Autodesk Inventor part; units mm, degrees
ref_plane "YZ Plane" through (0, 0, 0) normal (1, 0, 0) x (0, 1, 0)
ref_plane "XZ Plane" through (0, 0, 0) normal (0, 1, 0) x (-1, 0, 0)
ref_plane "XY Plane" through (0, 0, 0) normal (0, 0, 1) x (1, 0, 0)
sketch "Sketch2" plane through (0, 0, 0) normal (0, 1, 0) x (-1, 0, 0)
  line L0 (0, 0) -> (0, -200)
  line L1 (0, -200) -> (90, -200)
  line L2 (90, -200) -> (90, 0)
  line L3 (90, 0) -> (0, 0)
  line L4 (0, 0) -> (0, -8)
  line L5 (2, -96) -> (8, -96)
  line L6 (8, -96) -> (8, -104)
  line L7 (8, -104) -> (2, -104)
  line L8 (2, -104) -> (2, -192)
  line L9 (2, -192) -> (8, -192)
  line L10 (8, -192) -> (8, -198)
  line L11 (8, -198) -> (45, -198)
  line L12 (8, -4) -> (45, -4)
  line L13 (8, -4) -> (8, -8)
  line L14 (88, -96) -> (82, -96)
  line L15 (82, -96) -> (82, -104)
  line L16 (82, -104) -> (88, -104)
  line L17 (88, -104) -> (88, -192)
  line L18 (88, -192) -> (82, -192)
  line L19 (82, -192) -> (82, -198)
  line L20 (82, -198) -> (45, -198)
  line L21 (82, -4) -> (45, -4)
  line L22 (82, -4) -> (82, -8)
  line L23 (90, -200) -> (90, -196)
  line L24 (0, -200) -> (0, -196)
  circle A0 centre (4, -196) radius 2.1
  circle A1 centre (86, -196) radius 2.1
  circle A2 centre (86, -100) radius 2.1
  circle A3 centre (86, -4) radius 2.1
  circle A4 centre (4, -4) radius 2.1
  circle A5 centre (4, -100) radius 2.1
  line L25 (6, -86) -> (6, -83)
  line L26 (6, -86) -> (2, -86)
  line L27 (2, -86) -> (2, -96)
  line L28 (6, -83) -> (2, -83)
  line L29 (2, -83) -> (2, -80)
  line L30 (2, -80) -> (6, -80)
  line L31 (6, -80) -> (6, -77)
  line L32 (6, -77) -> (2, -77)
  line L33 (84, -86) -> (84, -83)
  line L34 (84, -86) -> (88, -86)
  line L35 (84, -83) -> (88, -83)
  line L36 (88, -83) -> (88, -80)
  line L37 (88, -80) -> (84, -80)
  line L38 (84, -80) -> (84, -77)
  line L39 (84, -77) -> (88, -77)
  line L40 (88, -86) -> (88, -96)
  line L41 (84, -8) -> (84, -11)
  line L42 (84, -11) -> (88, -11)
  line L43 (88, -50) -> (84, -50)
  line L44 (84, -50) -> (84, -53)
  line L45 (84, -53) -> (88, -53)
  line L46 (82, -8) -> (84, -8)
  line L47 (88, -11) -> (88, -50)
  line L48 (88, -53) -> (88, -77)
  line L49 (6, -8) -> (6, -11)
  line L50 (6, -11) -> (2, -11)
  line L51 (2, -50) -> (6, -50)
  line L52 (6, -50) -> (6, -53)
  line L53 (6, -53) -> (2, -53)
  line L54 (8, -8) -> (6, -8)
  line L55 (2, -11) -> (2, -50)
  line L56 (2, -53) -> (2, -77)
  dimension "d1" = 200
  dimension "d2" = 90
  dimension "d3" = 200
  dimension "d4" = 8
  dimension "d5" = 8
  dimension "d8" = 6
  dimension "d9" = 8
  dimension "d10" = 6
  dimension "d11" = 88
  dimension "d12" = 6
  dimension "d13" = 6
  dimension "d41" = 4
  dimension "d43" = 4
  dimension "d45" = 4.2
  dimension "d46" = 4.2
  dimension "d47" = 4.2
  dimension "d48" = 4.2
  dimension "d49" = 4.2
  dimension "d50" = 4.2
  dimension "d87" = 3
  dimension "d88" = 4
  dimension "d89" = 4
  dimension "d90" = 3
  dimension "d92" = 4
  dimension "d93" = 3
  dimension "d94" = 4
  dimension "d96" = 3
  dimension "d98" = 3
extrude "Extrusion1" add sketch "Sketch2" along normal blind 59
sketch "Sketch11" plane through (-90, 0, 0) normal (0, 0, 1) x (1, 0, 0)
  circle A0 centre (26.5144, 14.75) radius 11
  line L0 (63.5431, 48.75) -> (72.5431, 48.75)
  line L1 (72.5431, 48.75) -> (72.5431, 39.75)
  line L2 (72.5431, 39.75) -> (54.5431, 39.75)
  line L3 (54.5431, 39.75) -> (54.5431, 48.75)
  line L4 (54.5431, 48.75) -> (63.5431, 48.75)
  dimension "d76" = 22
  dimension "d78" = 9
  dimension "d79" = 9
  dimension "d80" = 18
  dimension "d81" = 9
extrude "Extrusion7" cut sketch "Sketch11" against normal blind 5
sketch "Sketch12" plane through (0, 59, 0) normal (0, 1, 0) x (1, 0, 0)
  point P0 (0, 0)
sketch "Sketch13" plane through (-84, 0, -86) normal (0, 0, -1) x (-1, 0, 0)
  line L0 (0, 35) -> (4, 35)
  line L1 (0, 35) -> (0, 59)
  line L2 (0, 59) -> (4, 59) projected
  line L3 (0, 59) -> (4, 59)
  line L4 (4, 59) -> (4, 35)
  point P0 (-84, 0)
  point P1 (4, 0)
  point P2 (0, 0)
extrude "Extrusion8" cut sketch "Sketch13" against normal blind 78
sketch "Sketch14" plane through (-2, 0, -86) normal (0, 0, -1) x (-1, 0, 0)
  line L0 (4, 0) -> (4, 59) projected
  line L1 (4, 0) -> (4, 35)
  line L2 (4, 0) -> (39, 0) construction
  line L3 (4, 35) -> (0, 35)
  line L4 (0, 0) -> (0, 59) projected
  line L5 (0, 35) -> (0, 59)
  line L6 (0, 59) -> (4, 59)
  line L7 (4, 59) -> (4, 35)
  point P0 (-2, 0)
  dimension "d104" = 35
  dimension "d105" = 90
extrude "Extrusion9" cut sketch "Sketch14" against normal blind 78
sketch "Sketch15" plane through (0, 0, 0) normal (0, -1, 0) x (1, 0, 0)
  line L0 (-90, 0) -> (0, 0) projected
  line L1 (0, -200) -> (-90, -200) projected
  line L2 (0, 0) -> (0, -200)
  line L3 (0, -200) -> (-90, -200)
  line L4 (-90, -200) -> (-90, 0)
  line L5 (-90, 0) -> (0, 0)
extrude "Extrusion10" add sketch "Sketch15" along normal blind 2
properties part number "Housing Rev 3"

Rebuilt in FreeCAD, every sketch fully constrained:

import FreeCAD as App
import Part
import Sketcher
Q = App.Units.Quantity


def add_polygon(sketch, points):
    """Adds a closed chain of lines whose ends are joined by coincident constraints."""
    first, n = sketch.GeometryCount, len(points)
    for a, b in zip(points, points[1:] + points[:1]):
        sketch.addGeometry(Part.LineSegment(App.Vector(*a, 0), App.Vector(*b, 0)), False)
    for i in range(n):
        sketch.addConstraint(Sketcher.Constraint("Coincident", first + i, 2, first + (i + 1) % n, 1))

doc = App.newDocument("Part")
body = doc.addObject("PartDesign::Body", "Body")

# Sketch on XZ plane
sketch1 = doc.addObject("Sketcher::SketchObject", "Sketch")
body.addObject(sketch1)
sketch1.AttachmentSupport = (doc.XZ_Plane, [""])
sketch1.MapMode = "FlatFace"
add_polygon(sketch1, [(-90, 0), (0, 0), (0, -200), (-90, -200)])  # lines 0-3
sketch1.addGeometry(Part.Circle(App.Vector(-4, -196, 0), App.Vector(0, 0, 1), 2.1), False)  # 4
sketch1.addGeometry(Part.Circle(App.Vector(-86, -196, 0), App.Vector(0, 0, 1), 2.1), False)  # 5
add_polygon(sketch1, [(-8, -96), (-2, -96), (-2, -86), (-6, -86), (-6, -83), (-2, -83), (-2, -80), (-6, -80), (-6, -77), (-2, -77), (-2, -53), (-6, -53), (-6, -50), (-2, -50), (-2, -11), (-6, -11), (-6, -8), (-8, -8), (-8, -4), (-82, -4), (-82, -8), (-84, -8), (-84, -11), (-88, -11), (-88, -50), (-84, -50), (-84, -53), (-88, -53), (-88, -77), (-84, -77), (-84, -80), (-88, -80), (-88, -83), (-84, -83), (-84, -86), (-88, -86), (-88, -96), (-82, -96), (-82, -104), (-88, -104), (-88, -192), (-82, -192), (-82, -198), (-8, -198), (-8, -192), (-2, -192), (-2, -104), (-8, -104)])  # lines 6-53
sketch1.addGeometry(Part.Circle(App.Vector(-4, -100, 0), App.Vector(0, 0, 1), 2.1), False)  # 54
sketch1.addGeometry(Part.Circle(App.Vector(-4, -4, 0), App.Vector(0, 0, 1), 2.1), False)  # 55
sketch1.addGeometry(Part.Circle(App.Vector(-86, -100, 0), App.Vector(0, 0, 1), 2.1), False)  # 56
sketch1.addGeometry(Part.Circle(App.Vector(-86, -4, 0), App.Vector(0, 0, 1), 2.1), False)  # 57
sketch1.addConstraint([
    Sketcher.Constraint("Horizontal", 0),
    Sketcher.Constraint("Vertical", 1),
    Sketcher.Constraint("Horizontal", 2),
    Sketcher.Constraint("Vertical", 3),
    Sketcher.Constraint("Horizontal", 6),
    Sketcher.Constraint("Vertical", 7),
    Sketcher.Constraint("Horizontal", 8),
    Sketcher.Constraint("Vertical", 9),
    Sketcher.Constraint("Horizontal", 10),
    Sketcher.Constraint("Vertical", 11),
    Sketcher.Constraint("Horizontal", 12),
    Sketcher.Constraint("Vertical", 13),
    Sketcher.Constraint("Horizontal", 14),
    Sketcher.Constraint("Vertical", 15),
    Sketcher.Constraint("Horizontal", 16),
    Sketcher.Constraint("Vertical", 17),
    Sketcher.Constraint("Horizontal", 18),
    Sketcher.Constraint("Vertical", 19),
    Sketcher.Constraint("Horizontal", 20),
    Sketcher.Constraint("Vertical", 21),
    Sketcher.Constraint("Horizontal", 22),
    Sketcher.Constraint("Vertical", 23),
    Sketcher.Constraint("Horizontal", 24),
    Sketcher.Constraint("Vertical", 25),
    Sketcher.Constraint("Horizontal", 26),
    Sketcher.Constraint("Vertical", 27),
    Sketcher.Constraint("Horizontal", 28),
    Sketcher.Constraint("Vertical", 29),
    Sketcher.Constraint("Horizontal", 30),
    Sketcher.Constraint("Vertical", 31),
    Sketcher.Constraint("Horizontal", 32),
    Sketcher.Constraint("Vertical", 33),
    Sketcher.Constraint("Horizontal", 34),
    Sketcher.Constraint("Vertical", 35),
    Sketcher.Constraint("Horizontal", 36),
    Sketcher.Constraint("Vertical", 37),
    Sketcher.Constraint("Horizontal", 38),
    Sketcher.Constraint("Vertical", 39),
    Sketcher.Constraint("Horizontal", 40),
    Sketcher.Constraint("Vertical", 41),
    Sketcher.Constraint("Horizontal", 42),
    Sketcher.Constraint("Vertical", 43),
    Sketcher.Constraint("Horizontal", 44),
    Sketcher.Constraint("Vertical", 45),
    Sketcher.Constraint("Horizontal", 46),
    Sketcher.Constraint("Vertical", 47),
    Sketcher.Constraint("Horizontal", 48),
    Sketcher.Constraint("Vertical", 49),
    Sketcher.Constraint("Horizontal", 50),
    Sketcher.Constraint("Vertical", 51),
    Sketcher.Constraint("Horizontal", 52),
    Sketcher.Constraint("Vertical", 53),
    Sketcher.Constraint("Coincident", 0, 2, -1, 1),
    Sketcher.Constraint("Equal", 4, 5),
    Sketcher.Constraint("Equal", 5, 54),
    Sketcher.Constraint("Equal", 54, 55),
    Sketcher.Constraint("Equal", 55, 56),
    Sketcher.Constraint("Equal", 56, 57),
    Sketcher.Constraint("Horizontal", 4, 3, 5, 3),
    Sketcher.Constraint("Horizontal", 54, 3, 56, 3),
    Sketcher.Constraint("Horizontal", 55, 3, 57, 3),
    Sketcher.Constraint("Horizontal", 57, 3, 23, 2),
    Sketcher.Constraint("Horizontal", 22, 2, 25, 2),
    Sketcher.Constraint("Horizontal", 20, 2, 27, 2),
    Sketcher.Constraint("Horizontal", 18, 2, 29, 2),
    Sketcher.Constraint("Horizontal", 16, 2, 31, 2),
    Sketcher.Constraint("Horizontal", 14, 2, 33, 2),
    Sketcher.Constraint("Horizontal", 12, 2, 35, 2),
    Sketcher.Constraint("Horizontal", 10, 2, 37, 2),
    Sketcher.Constraint("Horizontal", 8, 2, 39, 2),
    Sketcher.Constraint("Horizontal", 6, 2, 41, 2),
    Sketcher.Constraint("Horizontal", 46, 2, 49, 2),
    Sketcher.Constraint("Horizontal", 44, 2, 51, 2),
    Sketcher.Constraint("Vertical", 4, 3, 54, 3),
    Sketcher.Constraint("Vertical", 54, 3, 55, 3),
    Sketcher.Constraint("Vertical", 5, 3, 56, 3),
    Sketcher.Constraint("Vertical", 56, 3, 57, 3),
    Sketcher.Constraint("Vertical", 7, 2, 10, 2),
    Sketcher.Constraint("Vertical", 9, 2, 12, 2),
    Sketcher.Constraint("Vertical", 11, 2, 14, 2),
    Sketcher.Constraint("Vertical", 13, 2, 16, 2),
    Sketcher.Constraint("Vertical", 15, 2, 18, 2),
    Sketcher.Constraint("Vertical", 17, 2, 20, 2),
    Sketcher.Constraint("Vertical", 27, 2, 30, 2),
    Sketcher.Constraint("Vertical", 29, 2, 32, 2),
    Sketcher.Constraint("Vertical", 31, 2, 34, 2),
    Sketcher.Constraint("Vertical", 33, 2, 36, 2),
    Sketcher.Constraint("Vertical", 35, 2, 38, 2),
    Sketcher.Constraint("Vertical", 37, 2, 40, 2),
    Sketcher.Constraint("Vertical", 25, 2, 42, 2),
    Sketcher.Constraint("Vertical", 41, 2, 44, 2),
    Sketcher.Constraint("Vertical", 43, 2, 46, 2),
    Sketcher.Constraint("Vertical", 23, 2, 48, 2),
    Sketcher.Constraint("Vertical", 19, 2, 50, 2),
    Sketcher.Constraint("Vertical", 49, 2, 52, 2),
    Sketcher.Constraint("Equal", 22, 26),
    Sketcher.Constraint("Equal", 20, 28),
    Sketcher.Constraint("Equal", 9, 11),
    Sketcher.Constraint("Equal", 11, 13),
    Sketcher.Constraint("Equal", 13, 17),
    Sketcher.Constraint("Equal", 17, 21),
    Sketcher.Constraint("Equal", 40, 23),
    Sketcher.Constraint("Equal", 52, 47),
    Sketcher.Constraint("Diameter", 4, Q("4.2 mm")),
    Sketcher.Constraint("DistanceX", 0, 1, 0, 2, Q("90 mm")),
    Sketcher.Constraint("DistanceX", 6, 1, 6, 2, Q("6 mm")),
    Sketcher.Constraint("DistanceX", 8, 2, 8, 1, Q("4 mm")),
    Sketcher.Constraint("DistanceY", 1, 2, 1, 1, Q("200 mm")),
    Sketcher.Constraint("DistanceY", 9, 1, 9, 2, Q("3 mm")),
    Sketcher.Constraint("DistanceY", 43, 2, 43, 1, Q("8 mm")),
    Sketcher.Constraint("DistanceY", 45, 2, 45, 1, Q("88 mm")),
    Sketcher.Constraint("DistanceX", 4, 3, -1, 1, Q("4 mm")),
    Sketcher.Constraint("DistanceY", 55, 3, -1, 1, Q("4 mm")),
    Sketcher.Constraint("DistanceX", 8, 2, -1, 1, Q("6 mm")),
    Sketcher.Constraint("DistanceX", 28, 2, -1, 1, Q("88 mm")),
    Sketcher.Constraint("DistanceY", 1, 2, 4, 3, Q("4 mm")),
    Sketcher.Constraint("DistanceX", 2, 2, 5, 3, Q("4 mm")),
    Sketcher.Constraint("DistanceY", 54, 3, 6, 2, Q("4 mm")),
    Sketcher.Constraint("DistanceY", 5, 3, 45, 2, Q("4 mm")),
    Sketcher.Constraint("DistanceY", 7, 1, 7, 2, Q("10 mm")),
    Sketcher.Constraint("DistanceY", 15, 1, 15, 2, Q("24 mm")),
])
pad1 = doc.addObject("PartDesign::Pad", "Pad")
body.addObject(pad1)
pad1.Profile = sketch1
pad1.Length = 59
pad1.Reversed = True

# Sketch on XY plane
sketch2 = doc.addObject("Sketcher::SketchObject", "Sketch001")
body.addObject(sketch2)
sketch2.AttachmentSupport = (doc.XY_Plane, [""])
sketch2.MapMode = "FlatFace"
sketch2.addGeometry(Part.Circle(App.Vector(-63.4856, 14.75, 0), App.Vector(0, 0, 1), 11), False)  # 0
add_polygon(sketch2, [(-17.4569, 48.75), (-35.4569, 48.75), (-35.4569, 39.75), (-17.4569, 39.75)])  # lines 1-4
sketch2.addConstraint([
    Sketcher.Constraint("Horizontal", 1),
    Sketcher.Constraint("Vertical", 2),
    Sketcher.Constraint("Horizontal", 3),
    Sketcher.Constraint("Vertical", 4),
    Sketcher.Constraint("Diameter", 0, Q("22 mm")),
    Sketcher.Constraint("DistanceX", 1, 2, 1, 1, Q("18 mm")),
    Sketcher.Constraint("DistanceY", 2, 2, 2, 1, Q("9 mm")),
    Sketcher.Constraint("DistanceY", 0, 3, 1, 2, Q("34 mm")),
    Sketcher.Constraint("DistanceY", -1, 1, 0, 3, Q("14.75 mm")),
    Sketcher.Constraint("DistanceX", 1, 2, -1, 1, Q("35.457 mm")),
    Sketcher.Constraint("DistanceX", 0, 3, -1, 1, Q("63.4856 mm")),
])
pocket1 = doc.addObject("PartDesign::Pocket", "Pocket")
body.addObject(pocket1)
pocket1.Profile = sketch2
pocket1.Length = 5

# Sketch on XY plane
sketch3 = doc.addObject("Sketcher::SketchObject", "Sketch002")
body.addObject(sketch3)
sketch3.AttachmentSupport = (doc.XY_Plane, [""])
sketch3.MapMode = "FlatFace"
sketch3.AttachmentOffset = App.Placement(App.Vector(0, 0, -86), App.Rotation())
add_polygon(sketch3, [(-84, 59), (-84, 35), (-88, 35), (-88, 59)])  # lines 0-3
sketch3.addConstraint([
    Sketcher.Constraint("Vertical", 0),
    Sketcher.Constraint("Horizontal", 1),
    Sketcher.Constraint("Vertical", 2),
    Sketcher.Constraint("Horizontal", 3),
    Sketcher.Constraint("DistanceX", 1, 2, 1, 1, Q("4 mm")),
    Sketcher.Constraint("DistanceY", 0, 2, 0, 1, Q("24 mm")),
    Sketcher.Constraint("DistanceX", 0, 2, -1, 1, Q("84 mm")),
    Sketcher.Constraint("DistanceY", -1, 1, 0, 2, Q("35 mm")),
])
pocket2 = doc.addObject("PartDesign::Pocket", "Pocket001")
body.addObject(pocket2)
pocket2.Profile = sketch3
pocket2.Length = 78
pocket2.Reversed = True

# Sketch on XY plane
sketch4 = doc.addObject("Sketcher::SketchObject", "Sketch003")
body.addObject(sketch4)
sketch4.AttachmentSupport = (doc.XY_Plane, [""])
sketch4.MapMode = "FlatFace"
sketch4.AttachmentOffset = App.Placement(App.Vector(0, 0, -86), App.Rotation())
add_polygon(sketch4, [(-2, 35), (-6, 35), (-6, 59), (-2, 59)])  # lines 0-3
sketch4.addConstraint([
    Sketcher.Constraint("Horizontal", 0),
    Sketcher.Constraint("Vertical", 1),
    Sketcher.Constraint("Horizontal", 2),
    Sketcher.Constraint("Vertical", 3),
    Sketcher.Constraint("DistanceY", -1, 1, 0, 2, Q("35 mm")),
    Sketcher.Constraint("DistanceX", 0, 2, 0, 1, Q("4 mm")),
    Sketcher.Constraint("DistanceY", 1, 1, 1, 2, Q("24 mm")),
    Sketcher.Constraint("DistanceX", 0, 2, -1, 1, Q("6 mm")),
])
pocket3 = doc.addObject("PartDesign::Pocket", "Pocket002")
body.addObject(pocket3)
pocket3.Profile = sketch4
pocket3.Length = 78
pocket3.Reversed = True

# Sketch on XZ plane
sketch5 = doc.addObject("Sketcher::SketchObject", "Sketch004")
body.addObject(sketch5)
sketch5.AttachmentSupport = (doc.XZ_Plane, [""])
sketch5.MapMode = "FlatFace"
add_polygon(sketch5, [(0, 0), (-90, 0), (-90, -200), (0, -200)])  # lines 0-3
sketch5.addConstraint([
    Sketcher.Constraint("Horizontal", 0),
    Sketcher.Constraint("Vertical", 1),
    Sketcher.Constraint("Horizontal", 2),
    Sketcher.Constraint("Vertical", 3),
    Sketcher.Constraint("Coincident", 3, 2, -1, 1),
    Sketcher.Constraint("DistanceX", 0, 2, 0, 1, Q("90 mm")),
    Sketcher.Constraint("DistanceY", 1, 2, 1, 1, Q("200 mm")),
])
pad2 = doc.addObject("PartDesign::Pad", "Pad001")
body.addObject(pad2)
pad2.Profile = sketch5
pad2.Length = 2

doc.recompute()
